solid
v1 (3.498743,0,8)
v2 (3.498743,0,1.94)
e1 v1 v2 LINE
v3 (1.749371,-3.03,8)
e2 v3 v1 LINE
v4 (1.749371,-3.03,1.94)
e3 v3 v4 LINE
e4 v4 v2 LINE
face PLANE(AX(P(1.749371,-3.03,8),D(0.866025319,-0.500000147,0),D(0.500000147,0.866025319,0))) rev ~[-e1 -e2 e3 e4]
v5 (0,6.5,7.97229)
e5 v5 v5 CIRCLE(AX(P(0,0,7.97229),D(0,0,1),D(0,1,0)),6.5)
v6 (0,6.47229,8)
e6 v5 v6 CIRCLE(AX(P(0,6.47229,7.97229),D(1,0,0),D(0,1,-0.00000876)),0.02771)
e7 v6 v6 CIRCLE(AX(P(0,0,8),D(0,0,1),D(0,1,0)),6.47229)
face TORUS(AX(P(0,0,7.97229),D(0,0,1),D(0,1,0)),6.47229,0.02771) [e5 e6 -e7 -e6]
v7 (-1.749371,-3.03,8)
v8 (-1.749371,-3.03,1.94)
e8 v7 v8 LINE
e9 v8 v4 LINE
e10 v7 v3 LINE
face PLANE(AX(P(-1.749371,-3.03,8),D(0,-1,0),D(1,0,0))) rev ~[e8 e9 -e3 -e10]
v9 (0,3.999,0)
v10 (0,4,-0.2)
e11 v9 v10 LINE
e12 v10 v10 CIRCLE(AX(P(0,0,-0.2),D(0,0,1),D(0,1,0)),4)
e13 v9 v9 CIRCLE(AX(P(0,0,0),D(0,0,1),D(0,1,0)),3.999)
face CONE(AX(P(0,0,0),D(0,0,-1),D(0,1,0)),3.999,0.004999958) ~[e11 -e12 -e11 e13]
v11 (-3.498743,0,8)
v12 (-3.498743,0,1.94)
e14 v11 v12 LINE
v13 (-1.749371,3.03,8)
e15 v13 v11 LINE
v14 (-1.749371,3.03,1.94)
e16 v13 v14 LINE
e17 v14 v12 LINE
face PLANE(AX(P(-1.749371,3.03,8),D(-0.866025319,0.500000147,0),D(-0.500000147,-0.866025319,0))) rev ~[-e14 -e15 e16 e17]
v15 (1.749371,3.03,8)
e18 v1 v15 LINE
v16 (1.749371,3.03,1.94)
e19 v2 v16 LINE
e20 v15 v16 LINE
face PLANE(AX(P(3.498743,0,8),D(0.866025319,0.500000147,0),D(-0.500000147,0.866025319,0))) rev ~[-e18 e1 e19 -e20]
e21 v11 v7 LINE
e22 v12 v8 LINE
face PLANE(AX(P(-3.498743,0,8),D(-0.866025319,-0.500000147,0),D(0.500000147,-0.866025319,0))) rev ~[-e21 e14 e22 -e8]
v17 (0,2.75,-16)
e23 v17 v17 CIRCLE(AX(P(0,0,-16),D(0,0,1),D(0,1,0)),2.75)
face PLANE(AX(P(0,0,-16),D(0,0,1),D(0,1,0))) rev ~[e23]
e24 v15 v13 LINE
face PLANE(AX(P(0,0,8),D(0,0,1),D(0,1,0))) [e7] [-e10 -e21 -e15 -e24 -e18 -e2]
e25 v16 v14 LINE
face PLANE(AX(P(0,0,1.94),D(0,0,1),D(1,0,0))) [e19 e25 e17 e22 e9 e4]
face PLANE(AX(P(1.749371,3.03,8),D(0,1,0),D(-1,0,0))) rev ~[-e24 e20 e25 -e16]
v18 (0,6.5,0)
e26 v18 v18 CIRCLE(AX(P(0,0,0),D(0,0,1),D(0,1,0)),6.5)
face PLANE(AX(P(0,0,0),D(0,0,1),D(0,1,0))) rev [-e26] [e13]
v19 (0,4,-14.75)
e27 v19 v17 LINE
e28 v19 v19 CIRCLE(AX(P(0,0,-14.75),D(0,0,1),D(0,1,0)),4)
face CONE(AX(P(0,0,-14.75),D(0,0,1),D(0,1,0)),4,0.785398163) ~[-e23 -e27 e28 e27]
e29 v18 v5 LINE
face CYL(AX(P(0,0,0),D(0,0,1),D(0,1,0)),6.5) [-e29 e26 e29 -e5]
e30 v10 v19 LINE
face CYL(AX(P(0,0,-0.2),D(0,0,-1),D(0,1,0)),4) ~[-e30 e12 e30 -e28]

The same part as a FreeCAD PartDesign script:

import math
import FreeCAD as App
import Part
import Sketcher
from FreeCAD import Vector
Q = App.Units.Quantity


def add_polygon(sketch, points):
    """Adds a closed chain of lines whose ends are joined by coincident constraints."""
    first, n = sketch.GeometryCount, len(points)
    for a, b in zip(points, points[1:] + points[:1]):
        sketch.addGeometry(Part.LineSegment(App.Vector(*a, 0), App.Vector(*b, 0)), False)
    for i in range(n):
        sketch.addConstraint(Sketcher.Constraint("Coincident", first + i, 2, first + (i + 1) % n, 1))

doc = App.newDocument("Part")
body = doc.addObject("PartDesign::Body", "Body")

sketch1 = doc.addObject("Sketcher::SketchObject", "Sketch")
body.addObject(sketch1)
sketch1.AttachmentSupport = (doc.YZ_Plane, [""])
sketch1.MapMode = "FlatFace"
sketch1.addGeometry(Part.LineSegment(Vector(3.999, 0, 0), Vector(6.5, 0, 0)), False)
sketch1.addGeometry(Part.LineSegment(Vector(6.5, 0, 0), Vector(6.5, 7.972, 0)), False)
sketch1.addGeometry(Part.ArcOfCircle(Part.Circle(Vector(6.472, 7.972, 0), Vector(0, 0, 1), 0.028), math.radians(0), math.radians(90)), False)
sketch1.addGeometry(Part.LineSegment(Vector(6.472, 8, 0), Vector(0, 8, 0)), False)
sketch1.addGeometry(Part.LineSegment(Vector(0, 8, 0), Vector(0, -16, 0)), False)
sketch1.addGeometry(Part.LineSegment(Vector(0, -16, 0), Vector(2.75, -16, 0)), False)
sketch1.addGeometry(Part.LineSegment(Vector(2.75, -16, 0), Vector(4, -14.75, 0)), False)
sketch1.addGeometry(Part.LineSegment(Vector(4, -14.75, 0), Vector(4, -0.2, 0)), False)
sketch1.addGeometry(Part.LineSegment(Vector(4, -0.2, 0), Vector(3.999, 0, 0)), False)
sketch1.addConstraint(Sketcher.Constraint("Coincident", 0, 2, 1, 1))
sketch1.addConstraint(Sketcher.Constraint("Coincident", 1, 2, 2, 1))
sketch1.addConstraint(Sketcher.Constraint("Coincident", 2, 2, 3, 1))
sketch1.addConstraint(Sketcher.Constraint("Coincident", 3, 2, 4, 1))
sketch1.addConstraint(Sketcher.Constraint("Coincident", 4, 2, 5, 1))
sketch1.addConstraint(Sketcher.Constraint("Coincident", 5, 2, 6, 1))
sketch1.addConstraint(Sketcher.Constraint("Coincident", 6, 2, 7, 1))
sketch1.addConstraint(Sketcher.Constraint("Coincident", 7, 2, 8, 1))
sketch1.addConstraint(Sketcher.Constraint("Coincident", 8, 2, 0, 1))
sketch1.addConstraint(Sketcher.Constraint("Horizontal", 0))
sketch1.addConstraint(Sketcher.Constraint("Vertical", 1))
sketch1.addConstraint(Sketcher.Constraint("Horizontal", 3))
sketch1.addConstraint(Sketcher.Constraint("Vertical", 4))
sketch1.addConstraint(Sketcher.Constraint("Horizontal", 5))
sketch1.addConstraint(Sketcher.Constraint("Vertical", 7))
sketch1.addConstraint(Sketcher.Constraint("PointOnObject", 0, 2, -1))
sketch1.addConstraint(Sketcher.Constraint("PointOnObject", 3, 2, -2))
sketch1.addConstraint(Sketcher.Constraint("Horizontal", 2, 3, 1, 2))
sketch1.addConstraint(Sketcher.Constraint("DistanceY", 4, 2, 4, 1, 24.0))
sketch1.addConstraint(Sketcher.Constraint("Angle", 6, Q("45 deg")))
sketch1.addConstraint(Sketcher.Constraint("DistanceY", -1, 1, 2, 2, 8.0))
sketch1.addConstraint(Sketcher.Constraint("DistanceX", -1, 1, 6, 2, 4.0))
sketch1.addConstraint(Sketcher.Constraint("DistanceX", 5, 1, 5, 2, 2.75))
sketch1.addConstraint(Sketcher.Constraint("DistanceY", 7, 1, 7, 2, 14.55))
sketch1.addConstraint(Sketcher.Constraint("DistanceX", -1, 1, 0, 2, 6.5))
sketch1.addConstraint(Sketcher.Constraint("DistanceX", 0, 1, 0, 2, 2.501))
sketch1.addConstraint(Sketcher.Constraint("Radius", 2, 0.02771))
sketch1.addConstraint(Sketcher.Constraint("DistanceX", 3, 2, 3, 1, 6.47229))
revolution = doc.addObject("PartDesign::Revolution", "Revolution")
body.addObject(revolution)
revolution.Profile = sketch1
revolution.ReferenceAxis = (sketch1, ["V_Axis"])
revolution.Angle = 360

sketch2 = doc.addObject("Sketcher::SketchObject", "Sketch001")
body.addObject(sketch2)
sketch2.AttachmentSupport = (doc.XY_Plane, [""])
sketch2.MapMode = "FlatFace"
sketch2.AttachmentOffset = App.Placement(Vector(0, 0, 8), App.Rotation())
add_polygon(sketch2, [(3.5, 0), (1.7, 3), (-1.7, 3), (-3.5, 0), (-1.7, -3), (1.7, -3)])
sketch2.addConstraint(Sketcher.Constraint("Horizontal", 1))
sketch2.addConstraint(Sketcher.Constraint("Horizontal", 4))
sketch2.addConstraint(Sketcher.Constraint("Symmetric", 0, 2, 3, 2, -1, 1))
sketch2.addConstraint(Sketcher.Constraint("Symmetric", 2, 2, 5, 2, -1, 1))
sketch2.addConstraint(Sketcher.Constraint("PointOnObject", 2, 2, -1))
sketch2.addConstraint(Sketcher.Constraint("Parallel", 2, 5))
sketch2.addConstraint(Sketcher.Constraint("Vertical", 1, 2, 3, 2))
sketch2.addConstraint(Sketcher.Constraint("Angle", 0, Q("120.00001 deg")))
sketch2.addConstraint(Sketcher.Constraint("DistanceY", -1, 1, 0, 2, 3.03))
sketch2.addConstraint(Sketcher.Constraint("DistanceX", 1, 2, 1, 1, 3.498742))
pocket1 = doc.addObject("PartDesign::Pocket", "Pocket")
body.addObject(pocket1)
pocket1.Profile = sketch2
pocket1.Length = 6.06

doc.recompute()
